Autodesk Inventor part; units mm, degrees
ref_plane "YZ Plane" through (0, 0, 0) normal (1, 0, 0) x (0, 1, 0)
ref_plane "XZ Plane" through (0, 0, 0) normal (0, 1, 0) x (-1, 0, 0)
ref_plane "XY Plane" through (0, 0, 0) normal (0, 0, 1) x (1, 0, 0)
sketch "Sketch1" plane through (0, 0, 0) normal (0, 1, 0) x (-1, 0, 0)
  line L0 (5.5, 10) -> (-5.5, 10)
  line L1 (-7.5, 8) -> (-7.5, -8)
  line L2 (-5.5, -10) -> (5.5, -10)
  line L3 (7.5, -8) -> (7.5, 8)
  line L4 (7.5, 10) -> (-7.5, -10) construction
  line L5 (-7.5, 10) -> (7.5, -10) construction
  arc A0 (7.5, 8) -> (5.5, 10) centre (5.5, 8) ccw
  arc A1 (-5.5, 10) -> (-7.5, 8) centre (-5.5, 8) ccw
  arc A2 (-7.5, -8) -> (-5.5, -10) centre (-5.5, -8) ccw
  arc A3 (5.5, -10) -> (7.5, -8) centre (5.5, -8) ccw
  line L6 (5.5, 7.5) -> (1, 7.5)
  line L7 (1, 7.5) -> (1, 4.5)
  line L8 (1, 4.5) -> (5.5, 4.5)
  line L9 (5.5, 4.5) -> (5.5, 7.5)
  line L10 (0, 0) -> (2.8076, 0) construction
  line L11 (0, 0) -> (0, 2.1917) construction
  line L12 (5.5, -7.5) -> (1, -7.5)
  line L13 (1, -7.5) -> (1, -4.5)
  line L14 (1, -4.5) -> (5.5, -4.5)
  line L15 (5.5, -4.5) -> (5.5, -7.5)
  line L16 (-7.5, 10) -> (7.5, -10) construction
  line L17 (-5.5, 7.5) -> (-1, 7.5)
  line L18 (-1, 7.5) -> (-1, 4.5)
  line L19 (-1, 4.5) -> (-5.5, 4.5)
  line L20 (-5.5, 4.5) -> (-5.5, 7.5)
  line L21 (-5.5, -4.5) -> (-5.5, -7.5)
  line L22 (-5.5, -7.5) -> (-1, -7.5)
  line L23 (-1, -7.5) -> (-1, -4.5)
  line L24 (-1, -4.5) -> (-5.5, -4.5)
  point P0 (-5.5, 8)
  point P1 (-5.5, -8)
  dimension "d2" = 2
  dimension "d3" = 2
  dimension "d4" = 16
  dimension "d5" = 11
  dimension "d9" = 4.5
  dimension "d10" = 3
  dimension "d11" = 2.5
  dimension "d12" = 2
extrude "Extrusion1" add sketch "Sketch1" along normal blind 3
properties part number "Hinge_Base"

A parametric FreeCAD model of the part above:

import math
import FreeCAD as App
import Part
import Sketcher

V = App.Vector
Q = App.Units.Quantity


def add_polygon(sketch, points):
    """Adds a closed chain of lines whose ends are joined by coincident constraints."""
    first, n = sketch.GeometryCount, len(points)
    for a, b in zip(points, points[1:] + points[:1]):
        sketch.addGeometry(Part.LineSegment(App.Vector(*a, 0), App.Vector(*b, 0)), False)
    for i in range(n):
        sketch.addConstraint(Sketcher.Constraint("Coincident", first + i, 2, first + (i + 1) % n, 1))

doc = App.newDocument("Part")
body = doc.addObject("PartDesign::Body", "Body")

sketch1 = doc.addObject("Sketcher::SketchObject", "Sketch")
body.addObject(sketch1)
sketch1.AttachmentSupport = (doc.XZ_Plane, [""])
sketch1.MapMode = "FlatFace"
sketch1.addGeometry(Part.ArcOfCircle(Part.Circle(V(-5.5, 8, 0), V(0, 0, 1), 2), math.radians(90), math.radians(180)), False)
sketch1.addGeometry(Part.LineSegment(V(-5.5, 10, 0), V(5.5, 10, 0)), False)
sketch1.addGeometry(Part.ArcOfCircle(Part.Circle(V(5.5, 8, 0), V(0, 0, 1), 2), math.radians(0), math.radians(90)), False)
sketch1.addGeometry(Part.LineSegment(V(7.5, 8, 0), V(7.5, -8, 0)), False)
sketch1.addGeometry(Part.ArcOfCircle(Part.Circle(V(5.5, -8, 0), V(0, 0, 1), 2), math.radians(-90), math.radians(0)), False)
sketch1.addGeometry(Part.LineSegment(V(5.5, -10, 0), V(-5.5, -10, 0)), False)
sketch1.addGeometry(Part.ArcOfCircle(Part.Circle(V(-5.5, -8, 0), V(0, 0, 1), 2), math.radians(180), math.radians(270)), False)
sketch1.addGeometry(Part.LineSegment(V(-7.5, -8, 0), V(-7.5, 8, 0)), False)
add_polygon(sketch1, [(5.5, -7.5), (5.5, -4.5), (1, -4.5), (1, -7.5)])
add_polygon(sketch1, [(-5.5, -4.5), (-5.5, -7.5), (-1, -7.5), (-1, -4.5)])
add_polygon(sketch1, [(5.5, 4.5), (5.5, 7.5), (1, 7.5), (1, 4.5)])
add_polygon(sketch1, [(-1, 7.5), (-5.5, 7.5), (-5.5, 4.5), (-1, 4.5)])
sketch1.addConstraint([
    Sketcher.Constraint("Tangent", 0, 1, 1, 1),
    Sketcher.Constraint("Tangent", 1, 2, 2, 2),
    Sketcher.Constraint("Tangent", 2, 1, 3, 1),
    Sketcher.Constraint("Tangent", 3, 2, 4, 2),
    Sketcher.Constraint("Tangent", 4, 1, 5, 1),
    Sketcher.Constraint("Tangent", 5, 2, 6, 2),
    Sketcher.Constraint("Tangent", 6, 1, 7, 1),
    Sketcher.Constraint("Tangent", 7, 2, 0, 2),
    Sketcher.Constraint("Horizontal", 1),
    Sketcher.Constraint("Vertical", 3),
    Sketcher.Constraint("Horizontal", 5),
    Sketcher.Constraint("Vertical", 7),
    Sketcher.Constraint("Vertical", 8),
    Sketcher.Constraint("Horizontal", 9),
    Sketcher.Constraint("Vertical", 10),
    Sketcher.Constraint("Horizontal", 11),
    Sketcher.Constraint("Vertical", 12),
    Sketcher.Constraint("Horizontal", 13),
    Sketcher.Constraint("Vertical", 14),
    Sketcher.Constraint("Horizontal", 15),
    Sketcher.Constraint("Vertical", 16),
    Sketcher.Constraint("Horizontal", 17),
    Sketcher.Constraint("Vertical", 18),
    Sketcher.Constraint("Horizontal", 19),
    Sketcher.Constraint("Horizontal", 20),
    Sketcher.Constraint("Vertical", 21),
    Sketcher.Constraint("Horizontal", 22),
    Sketcher.Constraint("Vertical", 23),
    Sketcher.Constraint("Equal", 0, 2),
    Sketcher.Constraint("Equal", 2, 4),
    Sketcher.Constraint("Equal", 4, 6),
    Sketcher.Constraint("Symmetric", 0, 3, 4, 3, -1, 1),
    Sketcher.Constraint("Symmetric", 12, 2, 16, 2, -1, 1),
    Sketcher.Constraint("Symmetric", 14, 2, 18, 2, -1, 1),
    Sketcher.Constraint("Symmetric", 11, 2, 20, 2, -1, 1),
    Sketcher.Constraint("Symmetric", 9, 2, 22, 2, -1, 1),
    Sketcher.Constraint("Symmetric", 11, 2, 12, 2, -2),
    Sketcher.Constraint("Symmetric", 9, 2, 14, 2, -2),
    Sketcher.Constraint("Vertical", 4, 1, 8, 2),
    Sketcher.Constraint("Radius", 0, Q("2 mm")),
    Sketcher.Constraint("DistanceX", 1, 1, 1, 2, Q("11 mm")),
    Sketcher.Constraint("DistanceY", 3, 2, 3, 1, Q("16 mm")),
    Sketcher.Constraint("DistanceY", 8, 1, 8, 2, Q("3 mm")),
    Sketcher.Constraint("DistanceX", 9, 2, 9, 1, Q("4.5 mm")),
    Sketcher.Constraint("DistanceY", 8, 2, -1, 1, Q("4.5 mm")),
])
pad1 = doc.addObject("PartDesign::Pad", "Pad")
body.addObject(pad1)
pad1.Profile = sketch1
pad1.Length = 3
pad1.Reversed = True

doc.recompute()
